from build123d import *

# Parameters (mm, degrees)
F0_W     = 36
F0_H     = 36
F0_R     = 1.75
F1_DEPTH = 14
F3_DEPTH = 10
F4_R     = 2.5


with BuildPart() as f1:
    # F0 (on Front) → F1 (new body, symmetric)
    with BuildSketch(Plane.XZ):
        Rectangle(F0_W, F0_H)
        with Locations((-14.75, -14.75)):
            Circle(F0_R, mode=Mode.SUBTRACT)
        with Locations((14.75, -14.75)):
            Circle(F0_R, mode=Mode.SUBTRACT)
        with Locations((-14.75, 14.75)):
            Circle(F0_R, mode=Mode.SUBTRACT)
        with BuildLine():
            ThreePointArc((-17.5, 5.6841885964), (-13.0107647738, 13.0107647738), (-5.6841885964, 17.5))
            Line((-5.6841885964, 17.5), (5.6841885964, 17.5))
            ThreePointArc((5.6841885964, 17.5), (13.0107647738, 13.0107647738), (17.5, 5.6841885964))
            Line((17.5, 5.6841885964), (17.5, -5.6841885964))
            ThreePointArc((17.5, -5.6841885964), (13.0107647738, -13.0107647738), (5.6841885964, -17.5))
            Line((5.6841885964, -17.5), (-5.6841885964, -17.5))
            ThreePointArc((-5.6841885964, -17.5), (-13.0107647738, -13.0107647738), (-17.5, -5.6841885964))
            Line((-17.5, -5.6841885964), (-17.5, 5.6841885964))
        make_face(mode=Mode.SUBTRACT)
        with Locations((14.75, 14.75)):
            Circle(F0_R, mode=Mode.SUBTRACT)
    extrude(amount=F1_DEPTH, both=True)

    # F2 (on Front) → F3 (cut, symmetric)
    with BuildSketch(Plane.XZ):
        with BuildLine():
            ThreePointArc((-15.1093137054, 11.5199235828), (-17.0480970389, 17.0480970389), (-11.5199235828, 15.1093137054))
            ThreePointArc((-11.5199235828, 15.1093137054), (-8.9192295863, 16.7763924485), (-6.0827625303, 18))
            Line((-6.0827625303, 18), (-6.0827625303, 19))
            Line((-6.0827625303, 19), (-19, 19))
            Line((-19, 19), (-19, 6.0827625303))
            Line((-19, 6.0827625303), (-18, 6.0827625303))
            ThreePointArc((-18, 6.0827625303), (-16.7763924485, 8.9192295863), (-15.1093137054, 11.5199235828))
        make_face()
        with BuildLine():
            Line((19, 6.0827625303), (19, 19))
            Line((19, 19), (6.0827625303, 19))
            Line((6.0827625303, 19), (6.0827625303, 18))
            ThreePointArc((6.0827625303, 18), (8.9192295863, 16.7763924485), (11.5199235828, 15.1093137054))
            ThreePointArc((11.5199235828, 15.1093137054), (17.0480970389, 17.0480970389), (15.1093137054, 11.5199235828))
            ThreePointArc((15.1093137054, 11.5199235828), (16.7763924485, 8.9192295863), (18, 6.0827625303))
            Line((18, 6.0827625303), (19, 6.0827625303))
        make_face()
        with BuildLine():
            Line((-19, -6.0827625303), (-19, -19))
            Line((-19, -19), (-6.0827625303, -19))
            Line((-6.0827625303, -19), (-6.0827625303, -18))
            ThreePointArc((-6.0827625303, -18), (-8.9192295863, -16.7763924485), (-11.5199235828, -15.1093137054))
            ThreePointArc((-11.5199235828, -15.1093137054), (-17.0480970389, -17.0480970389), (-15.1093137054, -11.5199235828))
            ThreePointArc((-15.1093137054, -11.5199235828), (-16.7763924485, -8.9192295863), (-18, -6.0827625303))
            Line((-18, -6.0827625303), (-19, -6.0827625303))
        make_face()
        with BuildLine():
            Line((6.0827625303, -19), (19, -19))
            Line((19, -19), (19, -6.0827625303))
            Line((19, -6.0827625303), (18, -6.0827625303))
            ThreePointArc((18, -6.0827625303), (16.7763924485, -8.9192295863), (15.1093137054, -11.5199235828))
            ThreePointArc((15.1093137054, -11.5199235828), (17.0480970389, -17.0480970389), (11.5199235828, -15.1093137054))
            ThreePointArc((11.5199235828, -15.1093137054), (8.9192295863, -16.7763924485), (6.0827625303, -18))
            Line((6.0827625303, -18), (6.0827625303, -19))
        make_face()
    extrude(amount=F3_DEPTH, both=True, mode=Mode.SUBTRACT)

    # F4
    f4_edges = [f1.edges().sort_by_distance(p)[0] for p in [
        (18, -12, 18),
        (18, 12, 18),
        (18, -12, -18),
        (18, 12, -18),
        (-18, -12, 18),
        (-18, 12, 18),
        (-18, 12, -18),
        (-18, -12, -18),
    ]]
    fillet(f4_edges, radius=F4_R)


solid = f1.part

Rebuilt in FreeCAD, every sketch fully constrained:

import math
import FreeCAD as App
import Part
import Sketcher
from FreeCAD import Vector


def edges_at(feature, points):
    """Names of the edges that pass closest to the given points."""
    edges = feature.Shape.Edges
    near = lambda p: min(range(len(edges)), key=lambda i: edges[i].distToShape(Part.Vertex(*p))[0])
    return sorted({f"Edge{near(p) + 1}" for p in points})


def add_polygon(sketch, points):
    """Adds a closed chain of lines whose ends are joined by coincident constraints."""
    first, n = sketch.GeometryCount, len(points)
    for a, b in zip(points, points[1:] + points[:1]):
        sketch.addGeometry(Part.LineSegment(App.Vector(*a, 0), App.Vector(*b, 0)), False)
    for i in range(n):
        sketch.addConstraint(Sketcher.Constraint("Coincident", first + i, 2, first + (i + 1) % n, 1))

doc = App.newDocument("Part")
params = doc.addObject("Spreadsheet::Sheet", "Params")
for row, (alias, value) in enumerate([
    ("sketch1_diameter", "3.5 mm"),
    ("sketch1_radius", "18.4 mm"),
    ("sketch1_width", "36 mm"),
    ("pad1_length", "28 mm"),
    ("sketch2_radius", "19 mm"),
    ("sketch2_width", "1 mm"),
    ("sketch2_radius2", "3.25 mm"),
    ("pocket1_length", "20 mm"),
    ("fillet_radius", "2.5 mm"),
], start=1):
    params.set(f"A{row}", alias)
    params.set(f"B{row}", "=" + value)
    params.setAlias(f"B{row}", alias)

body = doc.addObject("PartDesign::Body", "Body")

# Sketch on XZ plane
sketch1 = body.newObject("Sketcher::SketchObject", "Sketch")
sketch1.AttachmentSupport = (doc.getObject("XZ_Plane"), [""])
sketch1.MapMode = "FlatFace"
add_polygon(sketch1, [(-18, 18), (-18, -18), (18, -18), (18, 18)])  # lines 0-3
sketch1.addGeometry(Part.Circle(Vector(-14.8, -14.8, 0), Vector(0, 0, 1), 1.8), False)  # 4
sketch1.addGeometry(Part.Circle(Vector(14.8, -14.8, 0), Vector(0, 0, 1), 1.8), False)  # 5
sketch1.addGeometry(Part.Circle(Vector(-14.8, 14.8, 0), Vector(0, 0, 1), 1.8), False)  # 6
sketch1.addGeometry(Part.LineSegment(Vector(-17.5, -5.7, 0), Vector(-17.5, 5.7, 0)), False)  # 7
sketch1.addGeometry(Part.ArcOfCircle(Part.Circle(Vector(0, 0, 0), Vector(0, 0, 1), 18.4), math.radians(108), math.radians(162)), False)  # 8
sketch1.addGeometry(Part.LineSegment(Vector(-5.7, 17.5, 0), Vector(5.7, 17.5, 0)), False)  # 9
sketch1.addGeometry(Part.ArcOfCircle(Part.Circle(Vector(0, 0, 0), Vector(0, 0, 1), 18.4), math.radians(18), math.radians(72)), False)  # 10
sketch1.addGeometry(Part.LineSegment(Vector(17.5, 5.7, 0), Vector(17.5, -5.7, 0)), False)  # 11
sketch1.addGeometry(Part.ArcOfCircle(Part.Circle(Vector(0, 0, 0), Vector(0, 0, 1), 18.4), math.radians(-72), math.radians(-18)), False)  # 12
sketch1.addGeometry(Part.LineSegment(Vector(5.7, -17.5, 0), Vector(-5.7, -17.5, 0)), False)  # 13
sketch1.addGeometry(Part.ArcOfCircle(Part.Circle(Vector(0, 0, 0), Vector(0, 0, 1), 18.4), math.radians(-162), math.radians(-108)), False)  # 14
sketch1.addGeometry(Part.Circle(Vector(14.8, 14.8, 0), Vector(0, 0, 1), 1.8), False)  # 15
sketch1.addConstraint(Sketcher.Constraint("Coincident", 7, 2, 8, 2))
sketch1.addConstraint(Sketcher.Constraint("Coincident", 8, 1, 9, 1))
sketch1.addConstraint(Sketcher.Constraint("Coincident", 9, 2, 10, 2))
sketch1.addConstraint(Sketcher.Constraint("Coincident", 10, 1, 11, 1))
sketch1.addConstraint(Sketcher.Constraint("Coincident", 11, 2, 12, 2))
sketch1.addConstraint(Sketcher.Constraint("Coincident", 12, 1, 13, 1))
sketch1.addConstraint(Sketcher.Constraint("Coincident", 13, 2, 14, 2))
sketch1.addConstraint(Sketcher.Constraint("Coincident", 14, 1, 7, 1))
sketch1.addConstraint(Sketcher.Constraint("Vertical", 0))
sketch1.addConstraint(Sketcher.Constraint("Horizontal", 1))
sketch1.addConstraint(Sketcher.Constraint("Vertical", 2))
sketch1.addConstraint(Sketcher.Constraint("Horizontal", 3))
sketch1.addConstraint(Sketcher.Constraint("Vertical", 7))
sketch1.addConstraint(Sketcher.Constraint("Horizontal", 9))
sketch1.addConstraint(Sketcher.Constraint("Vertical", 11))
sketch1.addConstraint(Sketcher.Constraint("Horizontal", 13))
sketch1.addConstraint(Sketcher.Constraint("Coincident", 8, 3, -1, 1))
sketch1.addConstraint(Sketcher.Constraint("Coincident", 10, 3, -1, 1))
sketch1.addConstraint(Sketcher.Constraint("Coincident", 12, 3, -1, 1))
sketch1.addConstraint(Sketcher.Constraint("Coincident", 14, 3, -1, 1))
sketch1.addConstraint(Sketcher.Constraint("Equal", 4, 5))
sketch1.addConstraint(Sketcher.Constraint("Equal", 5, 6))
sketch1.addConstraint(Sketcher.Constraint("Equal", 8, 10))
sketch1.addConstraint(Sketcher.Constraint("Equal", 10, 12))
sketch1.addConstraint(Sketcher.Constraint("Equal", 12, 14))
sketch1.addConstraint(Sketcher.Constraint("Equal", 6, 15))
sketch1.addConstraint(Sketcher.Constraint("Symmetric", 5, 3, 6, 3, -1, 1))
sketch1.addConstraint(Sketcher.Constraint("Symmetric", 4, 3, 15, 3, -1, 1))
sketch1.addConstraint(Sketcher.Constraint("Symmetric", 0, 2, 2, 2, -1, 1))
sketch1.addConstraint(Sketcher.Constraint("Symmetric", 4, 3, 5, 3, -2))
sketch1.addConstraint(Sketcher.Constraint("Horizontal", 7, 2, 10, 1))
sketch1.addConstraint(Sketcher.Constraint("Vertical", 9, 2, 12, 1))
sketch1.addConstraint(Sketcher.Constraint("Equal", 3, 0))
sketch1.addConstraint(Sketcher.Constraint("Equal", 13, 7))
sketch1.addConstraint(Sketcher.Constraint("Diameter", 4, 3.5))
sketch1.addConstraint(Sketcher.Constraint("Radius", 8, 18.4))
sketch1.addConstraint(Sketcher.Constraint("DistanceX", 1, 1, 1, 2, 36.0))
sketch1.addConstraint(Sketcher.Constraint("DistanceX", 7, 2, -1, 1, 17.5))
sketch1.addConstraint(Sketcher.Constraint("DistanceX", 4, 3, 5, 3, 29.5))
sketch1.addConstraint(Sketcher.Constraint("DistanceY", 4, 3, 6, 3, 29.5))
sketch1.setExpression("Constraints[38]", "Params.sketch1_diameter")
sketch1.setExpression("Constraints[39]", "Params.sketch1_radius")
sketch1.setExpression("Constraints[40]", "Params.sketch1_width")
pad1 = body.newObject("PartDesign::Pad", "Pad")
pad1.Profile = sketch1
pad1.setExpression("Length", "Params.pad1_length")
pad1.Midplane = True

# Sketch on XZ plane
sketch2 = body.newObject("Sketcher::SketchObject", "Sketch001")
sketch2.AttachmentSupport = (doc.getObject("XZ_Plane"), [""])
sketch2.MapMode = "FlatFace"
sketch2.addGeometry(Part.ArcOfCircle(Part.Circle(Vector(-14.8, 14.8, 0), Vector(0, 0, 1), 3.2), math.radians(6), math.radians(264)), False)
sketch2.addGeometry(Part.ArcOfCircle(Part.Circle(Vector(0, 0, 0), Vector(0, 0, 1), 19), math.radians(108.67), math.radians(127.32)), False)
sketch2.addGeometry(Part.LineSegment(Vector(-6.1, 18, 0), Vector(-6.1, 19, 0)), False)
sketch2.addGeometry(Part.LineSegment(Vector(-6.1, 19, 0), Vector(-19, 19, 0)), False)
sketch2.addGeometry(Part.LineSegment(Vector(-19, 19, 0), Vector(-19, 6.1, 0)), False)
sketch2.addGeometry(Part.LineSegment(Vector(-19, 6.1, 0), Vector(-18, 6.1, 0)), False)
sketch2.addGeometry(Part.ArcOfCircle(Part.Circle(Vector(0, 0, 0), Vector(0, 0, 1), 19), math.radians(142.68), math.radians(161.33)), False)
sketch2.addGeometry(Part.LineSegment(Vector(19, 6.1, 0), Vector(19, 19, 0)), False)
sketch2.addGeometry(Part.LineSegment(Vector(19, 19, 0), Vector(6.1, 19, 0)), False)
sketch2.addGeometry(Part.LineSegment(Vector(6.1, 19, 0), Vector(6.1, 18, 0)), False)
sketch2.addGeometry(Part.ArcOfCircle(Part.Circle(Vector(0, 0, 0), Vector(0, 0, 1), 19), math.radians(52.68), math.radians(71.33)), False)
sketch2.addGeometry(Part.ArcOfCircle(Part.Circle(Vector(14.8, 14.8, 0), Vector(0, 0, 1), 3.2), math.radians(-84), math.radians(174)), False)
sketch2.addGeometry(Part.ArcOfCircle(Part.Circle(Vector(0, 0, 0), Vector(0, 0, 1), 19), math.radians(18.67), math.radians(37.32)), False)
sketch2.addGeometry(Part.LineSegment(Vector(18, 6.1, 0), Vector(19, 6.1, 0)), False)
sketch2.addGeometry(Part.LineSegment(Vector(-19, -6.1, 0), Vector(-19, -19, 0)), False)
sketch2.addGeometry(Part.LineSegment(Vector(-19, -19, 0), Vector(-6.1, -19, 0)), False)
sketch2.addGeometry(Part.LineSegment(Vector(-6.1, -19, 0), Vector(-6.1, -18, 0)), False)
sketch2.addGeometry(Part.ArcOfCircle(Part.Circle(Vector(0, 0, 0), Vector(0, 0, 1), 19), math.radians(-127.32), math.radians(-108.67)), False)
sketch2.addGeometry(Part.ArcOfCircle(Part.Circle(Vector(-14.8, -14.8, 0), Vector(0, 0, 1), 3.2), math.radians(96), math.radians(354)), False)
sketch2.addGeometry(Part.ArcOfCircle(Part.Circle(Vector(0, 0, 0), Vector(0, 0, 1), 19), math.radians(-161.33), math.radians(-142.68)), False)
sketch2.addGeometry(Part.LineSegment(Vector(-18, -6.1, 0), Vector(-19, -6.1, 0)), False)
sketch2.addGeometry(Part.LineSegment(Vector(6.1, -19, 0), Vector(19, -19, 0)), False)
sketch2.addGeometry(Part.LineSegment(Vector(19, -19, 0), Vector(19, -6.1, 0)), False)
sketch2.addGeometry(Part.LineSegment(Vector(19, -6.1, 0), Vector(18, -6.1, 0)), False)
sketch2.addGeometry(Part.ArcOfCircle(Part.Circle(Vector(0, 0, 0), Vector(0, 0, 1), 19), math.radians(-37.32), math.radians(-18.67)), False)
sketch2.addGeometry(Part.ArcOfCircle(Part.Circle(Vector(14.8, -14.8, 0), Vector(0, 0, 1), 3.2), math.radians(-174), math.radians(84)), False)
sketch2.addGeometry(Part.ArcOfCircle(Part.Circle(Vector(0, 0, 0), Vector(0, 0, 1), 19), math.radians(-71.33), math.radians(-52.68)), False)
sketch2.addGeometry(Part.LineSegment(Vector(6.1, -18, 0), Vector(6.1, -19, 0)), False)
sketch2.addConstraint(Sketcher.Constraint("Coincident", 0, 1, 1, 2))
sketch2.addConstraint(Sketcher.Constraint("Coincident", 1, 1, 2, 1))
sketch2.addConstraint(Sketcher.Constraint("Coincident", 2, 2, 3, 1))
sketch2.addConstraint(Sketcher.Constraint("Coincident", 3, 2, 4, 1))
sketch2.addConstraint(Sketcher.Constraint("Coincident", 4, 2, 5, 1))
sketch2.addConstraint(Sketcher.Constraint("Coincident", 5, 2, 6, 2))
sketch2.addConstraint(Sketcher.Constraint("Coincident", 6, 1, 0, 2))
sketch2.addConstraint(Sketcher.Constraint("Coincident", 7, 2, 8, 1))
sketch2.addConstraint(Sketcher.Constraint("Coincident", 8, 2, 9, 1))
sketch2.addConstraint(Sketcher.Constraint("Coincident", 9, 2, 10, 2))
sketch2.addConstraint(Sketcher.Constraint("Coincident", 10, 1, 11, 2))
sketch2.addConstraint(Sketcher.Constraint("Coincident", 11, 1, 12, 2))
sketch2.addConstraint(Sketcher.Constraint("Coincident", 12, 1, 13, 1))
sketch2.addConstraint(Sketcher.Constraint("Coincident", 13, 2, 7, 1))
sketch2.addConstraint(Sketcher.Constraint("Coincident", 14, 2, 15, 1))
sketch2.addConstraint(Sketcher.Constraint("Coincident", 15, 2, 16, 1))
sketch2.addConstraint(Sketcher.Constraint("Coincident", 16, 2, 17, 2))
sketch2.addConstraint(Sketcher.Constraint("Coincident", 17, 1, 18, 2))
sketch2.addConstraint(Sketcher.Constraint("Coincident", 18, 1, 19, 2))
sketch2.addConstraint(Sketcher.Constraint("Coincident", 19, 1, 20, 1))
sketch2.addConstraint(Sketcher.Constraint("Coincident", 20, 2, 14, 1))
sketch2.addConstraint(Sketcher.Constraint("Coincident", 21, 2, 22, 1))
sketch2.addConstraint(Sketcher.Constraint("Coincident", 22, 2, 23, 1))
sketch2.addConstraint(Sketcher.Constraint("Coincident", 23, 2, 24, 2))
sketch2.addConstraint(Sketcher.Constraint("Coincident", 24, 1, 25, 2))
sketch2.addConstraint(Sketcher.Constraint("Coincident", 25, 1, 26, 2))
sketch2.addConstraint(Sketcher.Constraint("Coincident", 26, 1, 27, 1))
sketch2.addConstraint(Sketcher.Constraint("Coincident", 27, 2, 21, 1))
sketch2.addConstraint(Sketcher.Constraint("Vertical", 2))
sketch2.addConstraint(Sketcher.Constraint("Horizontal", 3))
sketch2.addConstraint(Sketcher.Constraint("Vertical", 4))
sketch2.addConstraint(Sketcher.Constraint("Horizontal", 5))
sketch2.addConstraint(Sketcher.Constraint("Vertical", 7))
sketch2.addConstraint(Sketcher.Constraint("Horizontal", 8))
sketch2.addConstraint(Sketcher.Constraint("Vertical", 9))
sketch2.addConstraint(Sketcher.Constraint("Horizontal", 13))
sketch2.addConstraint(Sketcher.Constraint("Vertical", 14))
sketch2.addConstraint(Sketcher.Constraint("Horizontal", 15))
sketch2.addConstraint(Sketcher.Constraint("Vertical", 16))
sketch2.addConstraint(Sketcher.Constraint("Horizontal", 20))
sketch2.addConstraint(Sketcher.Constraint("Horizontal", 21))
sketch2.addConstraint(Sketcher.Constraint("Vertical", 22))
sketch2.addConstraint(Sketcher.Constraint("Horizontal", 23))
sketch2.addConstraint(Sketcher.Constraint("Vertical", 27))
sketch2.addConstraint(Sketcher.Constraint("Coincident", 1, 3, -1, 1))
sketch2.addConstraint(Sketcher.Constraint("Coincident", 6, 3, -1, 1))
sketch2.addConstraint(Sketcher.Constraint("Coincident", 10, 3, -1, 1))
sketch2.addConstraint(Sketcher.Constraint("Coincident", 12, 3, -1, 1))
sketch2.addConstraint(Sketcher.Constraint("Coincident", 17, 3, -1, 1))
sketch2.addConstraint(Sketcher.Constraint("Coincident", 19, 3, -1, 1))
sketch2.addConstraint(Sketcher.Constraint("Coincident", 24, 3, -1, 1))
sketch2.addConstraint(Sketcher.Constraint("Coincident", 26, 3, -1, 1))
sketch2.addConstraint(Sketcher.Constraint("Equal", 1, 6))
sketch2.addConstraint(Sketcher.Constraint("Equal", 6, 10))
sketch2.addConstraint(Sketcher.Constraint("Equal", 0, 11))
sketch2.addConstraint(Sketcher.Constraint("Equal", 10, 12))
sketch2.addConstraint(Sketcher.Constraint("Equal", 12, 17))
sketch2.addConstraint(Sketcher.Constraint("Equal", 11, 18))
sketch2.addConstraint(Sketcher.Constraint("Equal", 17, 19))
sketch2.addConstraint(Sketcher.Constraint("Equal", 19, 24))
sketch2.addConstraint(Sketcher.Constraint("Equal", 18, 25))
sketch2.addConstraint(Sketcher.Constraint("Equal", 24, 26))
sketch2.addConstraint(Sketcher.Constraint("Symmetric", 11, 3, 18, 3, -1, 1))
sketch2.addConstraint(Sketcher.Constraint("Symmetric", 0, 3, 25, 3, -1, 1))
sketch2.addConstraint(Sketcher.Constraint("Symmetric", 7, 2, 14, 2, -1, 1))
sketch2.addConstraint(Sketcher.Constraint("Symmetric", 3, 2, 21, 2, -1, 1))
sketch2.addConstraint(Sketcher.Constraint("Symmetric", 0, 3, 11, 3, -2))
sketch2.addConstraint(Sketcher.Constraint("Symmetric", 3, 2, 7, 2, -2))
sketch2.addConstraint(Sketcher.Constraint("Horizontal", 1, 1, 9, 2))
sketch2.addConstraint(Sketcher.Constraint("Horizontal", 5, 2, 12, 1))
sketch2.addConstraint(Sketcher.Constraint("Horizontal", 20, 2, 22, 2))
sketch2.addConstraint(Sketcher.Constraint("Horizontal", 16, 2, 26, 1))
sketch2.addConstraint(Sketcher.Constraint("Vertical", 2, 2, 15, 2))
sketch2.addConstraint(Sketcher.Constraint("Vertical", 5, 2, 19, 1))
sketch2.addConstraint(Sketcher.Constraint("Equal", 23, 2))
sketch2.addConstraint(Sketcher.Constraint("Equal", 21, 4))
sketch2.addConstraint(Sketcher.Constraint("Radius", 1, 19.0))
sketch2.addConstraint(Sketcher.Constraint("DistanceX", 5, 1, 5, 2, 1.0))
sketch2.addConstraint(Sketcher.Constraint("Radius", 0, 3.25))
sketch2.addConstraint(Sketcher.Constraint("DistanceY", -1, 1, 1, 1, 18.0))
sketch2.addConstraint(Sketcher.Constraint("DistanceX", 0, 3, 11, 3, 29.5))
sketch2.addConstraint(Sketcher.Constraint("DistanceY", -1, 1, 0, 3, 14.75))
sketch2.setExpression("Constraints[76]", "Params.sketch2_radius")
sketch2.setExpression("Constraints[77]", "Params.sketch2_width")
sketch2.setExpression("Constraints[78]", "Params.sketch2_radius2")
pocket1 = body.newObject("PartDesign::Pocket", "Pocket")
pocket1.Profile = sketch2
pocket1.setExpression("Length", "Params.pocket1_length")
pocket1.Midplane = True
doc.recompute()

fillet = body.newObject("PartDesign::Fillet", "Fillet")
fillet.Base = (pocket1, edges_at(pocket1, [
    (18, -12, 18),
    (18, 12, 18),
    (18, -12, -18),
    (18, 12, -18),
    (-18, -12, 18),
    (-18, 12, 18),
    (-18, 12, -18),
    (-18, -12, -18),
]))
fillet.setExpression("Radius", "Params.fillet_radius")

doc.recompute()
